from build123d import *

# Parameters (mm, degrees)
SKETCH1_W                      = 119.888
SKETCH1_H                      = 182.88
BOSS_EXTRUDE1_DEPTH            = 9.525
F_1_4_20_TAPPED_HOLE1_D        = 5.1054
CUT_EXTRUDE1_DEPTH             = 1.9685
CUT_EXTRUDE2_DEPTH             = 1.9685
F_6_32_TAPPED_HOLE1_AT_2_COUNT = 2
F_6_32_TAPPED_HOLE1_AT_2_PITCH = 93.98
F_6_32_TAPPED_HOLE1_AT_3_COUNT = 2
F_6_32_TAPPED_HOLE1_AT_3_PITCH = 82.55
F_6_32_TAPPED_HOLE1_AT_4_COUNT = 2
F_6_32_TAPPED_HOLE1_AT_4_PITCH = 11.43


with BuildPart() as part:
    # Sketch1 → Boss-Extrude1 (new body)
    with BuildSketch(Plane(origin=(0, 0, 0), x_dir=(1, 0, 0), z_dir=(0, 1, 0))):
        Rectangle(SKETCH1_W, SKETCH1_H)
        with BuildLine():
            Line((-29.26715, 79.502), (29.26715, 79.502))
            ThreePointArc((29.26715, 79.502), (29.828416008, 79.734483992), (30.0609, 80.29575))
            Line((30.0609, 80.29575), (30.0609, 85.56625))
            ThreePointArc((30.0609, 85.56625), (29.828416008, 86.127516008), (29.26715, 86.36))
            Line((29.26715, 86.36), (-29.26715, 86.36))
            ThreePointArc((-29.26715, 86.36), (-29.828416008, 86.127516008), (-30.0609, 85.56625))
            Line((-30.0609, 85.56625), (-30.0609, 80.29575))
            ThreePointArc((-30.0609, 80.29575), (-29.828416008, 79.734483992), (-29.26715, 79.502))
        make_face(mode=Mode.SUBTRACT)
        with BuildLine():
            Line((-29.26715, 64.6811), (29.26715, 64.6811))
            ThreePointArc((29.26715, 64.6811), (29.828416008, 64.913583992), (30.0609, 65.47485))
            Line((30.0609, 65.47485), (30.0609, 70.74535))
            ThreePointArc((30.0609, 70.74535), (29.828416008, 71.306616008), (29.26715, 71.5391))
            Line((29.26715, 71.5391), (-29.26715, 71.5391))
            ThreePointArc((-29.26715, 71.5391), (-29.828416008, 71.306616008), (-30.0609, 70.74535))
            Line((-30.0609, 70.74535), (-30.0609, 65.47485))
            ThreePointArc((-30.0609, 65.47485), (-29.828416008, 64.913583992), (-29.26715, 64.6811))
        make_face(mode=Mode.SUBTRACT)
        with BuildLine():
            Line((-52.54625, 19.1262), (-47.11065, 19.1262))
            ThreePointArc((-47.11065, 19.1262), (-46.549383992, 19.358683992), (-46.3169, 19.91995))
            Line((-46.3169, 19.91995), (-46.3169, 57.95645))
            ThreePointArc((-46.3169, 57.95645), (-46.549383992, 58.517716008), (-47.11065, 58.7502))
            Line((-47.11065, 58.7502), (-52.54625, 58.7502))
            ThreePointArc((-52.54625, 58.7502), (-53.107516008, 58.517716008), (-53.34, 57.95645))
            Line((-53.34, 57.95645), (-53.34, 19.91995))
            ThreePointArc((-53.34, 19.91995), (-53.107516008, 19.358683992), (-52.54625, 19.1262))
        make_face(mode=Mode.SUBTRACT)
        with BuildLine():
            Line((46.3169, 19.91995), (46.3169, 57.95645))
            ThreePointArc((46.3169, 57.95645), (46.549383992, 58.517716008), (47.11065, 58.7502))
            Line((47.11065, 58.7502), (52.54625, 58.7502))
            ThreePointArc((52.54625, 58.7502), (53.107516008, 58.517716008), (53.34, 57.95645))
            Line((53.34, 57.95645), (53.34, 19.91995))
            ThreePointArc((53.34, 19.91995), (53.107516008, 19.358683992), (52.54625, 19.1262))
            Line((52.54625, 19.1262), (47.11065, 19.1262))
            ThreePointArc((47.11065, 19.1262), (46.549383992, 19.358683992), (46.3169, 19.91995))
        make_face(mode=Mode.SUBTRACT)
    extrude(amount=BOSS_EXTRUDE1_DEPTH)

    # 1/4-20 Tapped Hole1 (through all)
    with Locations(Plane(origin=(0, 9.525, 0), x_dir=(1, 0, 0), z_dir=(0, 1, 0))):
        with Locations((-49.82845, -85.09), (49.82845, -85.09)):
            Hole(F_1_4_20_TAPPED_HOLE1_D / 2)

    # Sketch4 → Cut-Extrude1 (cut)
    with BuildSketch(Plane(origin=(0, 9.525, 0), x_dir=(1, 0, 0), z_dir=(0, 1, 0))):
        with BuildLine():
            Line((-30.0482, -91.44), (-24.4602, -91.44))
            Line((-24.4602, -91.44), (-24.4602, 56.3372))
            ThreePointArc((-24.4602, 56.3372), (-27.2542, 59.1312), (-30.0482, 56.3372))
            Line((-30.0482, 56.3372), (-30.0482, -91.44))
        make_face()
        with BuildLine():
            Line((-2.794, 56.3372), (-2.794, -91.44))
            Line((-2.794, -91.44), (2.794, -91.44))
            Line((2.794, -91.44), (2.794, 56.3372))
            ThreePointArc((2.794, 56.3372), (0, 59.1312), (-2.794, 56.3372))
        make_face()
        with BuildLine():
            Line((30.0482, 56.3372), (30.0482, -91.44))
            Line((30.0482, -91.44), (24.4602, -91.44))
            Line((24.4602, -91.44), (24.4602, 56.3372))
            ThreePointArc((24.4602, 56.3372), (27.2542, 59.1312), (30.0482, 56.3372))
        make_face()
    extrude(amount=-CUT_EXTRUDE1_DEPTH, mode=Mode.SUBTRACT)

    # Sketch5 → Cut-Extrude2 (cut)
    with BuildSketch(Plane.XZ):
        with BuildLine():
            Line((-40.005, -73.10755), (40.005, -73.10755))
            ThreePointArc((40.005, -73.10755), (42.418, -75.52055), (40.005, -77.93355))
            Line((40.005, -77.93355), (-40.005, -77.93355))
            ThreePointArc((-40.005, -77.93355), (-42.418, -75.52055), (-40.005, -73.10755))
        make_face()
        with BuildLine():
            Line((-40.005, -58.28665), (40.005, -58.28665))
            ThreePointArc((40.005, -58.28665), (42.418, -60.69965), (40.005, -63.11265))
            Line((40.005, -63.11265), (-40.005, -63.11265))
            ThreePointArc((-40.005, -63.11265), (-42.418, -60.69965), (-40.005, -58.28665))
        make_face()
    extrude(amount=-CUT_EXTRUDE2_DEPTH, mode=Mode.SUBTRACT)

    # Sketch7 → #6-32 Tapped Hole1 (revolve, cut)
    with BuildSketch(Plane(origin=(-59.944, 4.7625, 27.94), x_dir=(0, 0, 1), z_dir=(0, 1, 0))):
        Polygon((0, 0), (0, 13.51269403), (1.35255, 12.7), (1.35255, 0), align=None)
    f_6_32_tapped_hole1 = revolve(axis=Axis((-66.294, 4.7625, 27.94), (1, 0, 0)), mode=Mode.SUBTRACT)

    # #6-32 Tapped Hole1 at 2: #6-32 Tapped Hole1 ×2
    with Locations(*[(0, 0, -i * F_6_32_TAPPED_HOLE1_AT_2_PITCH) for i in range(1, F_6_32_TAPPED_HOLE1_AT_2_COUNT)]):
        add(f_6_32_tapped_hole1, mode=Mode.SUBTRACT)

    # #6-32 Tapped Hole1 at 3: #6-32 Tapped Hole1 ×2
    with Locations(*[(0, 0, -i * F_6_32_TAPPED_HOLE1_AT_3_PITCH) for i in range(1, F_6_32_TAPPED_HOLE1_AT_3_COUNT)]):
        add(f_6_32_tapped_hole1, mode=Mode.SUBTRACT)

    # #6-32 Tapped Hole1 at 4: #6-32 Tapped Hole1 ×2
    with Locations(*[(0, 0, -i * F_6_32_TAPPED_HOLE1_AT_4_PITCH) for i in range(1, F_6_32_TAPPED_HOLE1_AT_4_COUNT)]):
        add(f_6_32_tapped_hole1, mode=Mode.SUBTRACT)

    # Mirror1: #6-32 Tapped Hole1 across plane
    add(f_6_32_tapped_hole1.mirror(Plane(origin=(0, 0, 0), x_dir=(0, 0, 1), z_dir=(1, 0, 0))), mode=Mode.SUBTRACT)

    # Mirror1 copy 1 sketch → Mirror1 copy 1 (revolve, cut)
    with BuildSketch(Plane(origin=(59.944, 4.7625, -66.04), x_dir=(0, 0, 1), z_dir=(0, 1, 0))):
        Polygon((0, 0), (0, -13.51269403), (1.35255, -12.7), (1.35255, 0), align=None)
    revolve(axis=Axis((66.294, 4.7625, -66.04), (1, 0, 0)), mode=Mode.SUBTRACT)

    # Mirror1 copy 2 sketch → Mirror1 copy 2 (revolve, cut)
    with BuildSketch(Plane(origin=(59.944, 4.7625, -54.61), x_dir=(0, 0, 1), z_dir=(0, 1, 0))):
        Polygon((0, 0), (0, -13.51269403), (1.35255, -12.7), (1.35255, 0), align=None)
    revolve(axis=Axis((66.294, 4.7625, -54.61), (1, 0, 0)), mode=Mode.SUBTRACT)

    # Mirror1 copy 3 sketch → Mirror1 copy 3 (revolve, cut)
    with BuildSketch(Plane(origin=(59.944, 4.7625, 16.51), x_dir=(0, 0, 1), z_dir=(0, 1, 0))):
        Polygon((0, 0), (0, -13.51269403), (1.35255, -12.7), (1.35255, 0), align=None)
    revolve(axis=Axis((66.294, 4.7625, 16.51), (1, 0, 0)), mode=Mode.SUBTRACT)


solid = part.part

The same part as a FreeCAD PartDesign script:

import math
import FreeCAD as App
import Part
import Sketcher

V = App.Vector
Q = App.Units.Quantity

doc = App.newDocument("Part")
body = doc.addObject("PartDesign::Body", "Body")

# Sketch on XZ plane
sketch1 = body.newObject("Sketcher::SketchObject", "Sketch")
sketch1.AttachmentSupport = (doc.getObject("XZ_Plane"), [""])
sketch1.MapMode = "FlatFace"
sketch1.addGeometry(Part.LineSegment(V(-59.9, -91.4, 0), V(-59.9, 91.4, 0)), False)
sketch1.addGeometry(Part.LineSegment(V(-59.9, 91.4, 0), V(59.9, 91.4, 0)), False)
sketch1.addGeometry(Part.LineSegment(V(59.9, 91.4, 0), V(59.9, -91.4, 0)), False)
sketch1.addGeometry(Part.LineSegment(V(59.9, -91.4, 0), V(-59.9, -91.4, 0)), False)
sketch1.addGeometry(Part.LineSegment(V(-47.1, -19.1, 0), V(-52.5, -19.1, 0)), False)
sketch1.addGeometry(Part.ArcOfCircle(Part.Circle(V(-52.5, -19.9, 0), V(0, 0, 1), 0.8), math.radians(90), math.radians(180)), False)
sketch1.addGeometry(Part.LineSegment(V(-53.3, -19.9, 0), V(-53.3, -58, 0)), False)
sketch1.addGeometry(Part.ArcOfCircle(Part.Circle(V(-52.5, -58, 0), V(0, 0, 1), 0.8), math.radians(180), math.radians(270)), False)
sketch1.addGeometry(Part.LineSegment(V(-52.5, -58.8, 0), V(-47.1, -58.8, 0)), False)
sketch1.addGeometry(Part.ArcOfCircle(Part.Circle(V(-47.1, -58, 0), V(0, 0, 1), 0.8), math.radians(-90), math.radians(0)), False)
sketch1.addGeometry(Part.LineSegment(V(-46.3, -58, 0), V(-46.3, -19.9, 0)), False)
sketch1.addGeometry(Part.ArcOfCircle(Part.Circle(V(-47.1, -19.9, 0), V(0, 0, 1), 0.8), math.radians(0), math.radians(90)), False)
sketch1.addGeometry(Part.ArcOfCircle(Part.Circle(V(47.1, -19.9, 0), V(0, 0, 1), 0.8), math.radians(90), math.radians(180)), False)
sketch1.addGeometry(Part.LineSegment(V(46.3, -19.9, 0), V(46.3, -58, 0)), False)
sketch1.addGeometry(Part.ArcOfCircle(Part.Circle(V(47.1, -58, 0), V(0, 0, 1), 0.8), math.radians(180), math.radians(270)), False)
sketch1.addGeometry(Part.LineSegment(V(47.1, -58.8, 0), V(52.5, -58.8, 0)), False)
sketch1.addGeometry(Part.ArcOfCircle(Part.Circle(V(52.5, -58, 0), V(0, 0, 1), 0.8), math.radians(-90), math.radians(0)), False)
sketch1.addGeometry(Part.LineSegment(V(53.3, -58, 0), V(53.3, -19.9, 0)), False)
sketch1.addGeometry(Part.ArcOfCircle(Part.Circle(V(52.5, -19.9, 0), V(0, 0, 1), 0.8), math.radians(0), math.radians(90)), False)
sketch1.addGeometry(Part.LineSegment(V(52.5, -19.1, 0), V(47.1, -19.1, 0)), False)
sketch1.addGeometry(Part.LineSegment(V(29.3, -64.7, 0), V(-29.3, -64.7, 0)), False)
sketch1.addGeometry(Part.ArcOfCircle(Part.Circle(V(-29.3, -65.5, 0), V(0, 0, 1), 0.8), math.radians(90), math.radians(180)), False)
sketch1.addGeometry(Part.LineSegment(V(-30.1, -65.5, 0), V(-30.1, -70.7, 0)), False)
sketch1.addGeometry(Part.ArcOfCircle(Part.Circle(V(-29.3, -70.7, 0), V(0, 0, 1), 0.8), math.radians(180), math.radians(270)), False)
sketch1.addGeometry(Part.LineSegment(V(-29.3, -71.5, 0), V(29.3, -71.5, 0)), False)
sketch1.addGeometry(Part.ArcOfCircle(Part.Circle(V(29.3, -70.7, 0), V(0, 0, 1), 0.8), math.radians(-90), math.radians(0)), False)
sketch1.addGeometry(Part.LineSegment(V(30.1, -70.7, 0), V(30.1, -65.5, 0)), False)
sketch1.addGeometry(Part.ArcOfCircle(Part.Circle(V(29.3, -65.5, 0), V(0, 0, 1), 0.8), math.radians(0), math.radians(90)), False)
sketch1.addGeometry(Part.LineSegment(V(29.3, -79.5, 0), V(-29.3, -79.5, 0)), False)
sketch1.addGeometry(Part.ArcOfCircle(Part.Circle(V(-29.3, -80.3, 0), V(0, 0, 1), 0.8), math.radians(90), math.radians(180)), False)
sketch1.addGeometry(Part.LineSegment(V(-30.1, -80.3, 0), V(-30.1, -85.6, 0)), False)
sketch1.addGeometry(Part.ArcOfCircle(Part.Circle(V(-29.3, -85.6, 0), V(0, 0, 1), 0.8), math.radians(180), math.radians(270)), False)
sketch1.addGeometry(Part.LineSegment(V(-29.3, -86.4, 0), V(29.3, -86.4, 0)), False)
sketch1.addGeometry(Part.ArcOfCircle(Part.Circle(V(29.3, -85.6, 0), V(0, 0, 1), 0.8), math.radians(-90), math.radians(0)), False)
sketch1.addGeometry(Part.LineSegment(V(30.1, -85.6, 0), V(30.1, -80.3, 0)), False)
sketch1.addGeometry(Part.ArcOfCircle(Part.Circle(V(29.3, -80.3, 0), V(0, 0, 1), 0.8), math.radians(0), math.radians(90)), False)
sketch1.addConstraint(Sketcher.Constraint("Coincident", 0, 2, 1, 1))
sketch1.addConstraint(Sketcher.Constraint("Coincident", 1, 2, 2, 1))
sketch1.addConstraint(Sketcher.Constraint("Coincident", 2, 2, 3, 1))
sketch1.addConstraint(Sketcher.Constraint("Coincident", 3, 2, 0, 1))
sketch1.addConstraint(Sketcher.Constraint("Tangent", 4, 2, 5, 1))
sketch1.addConstraint(Sketcher.Constraint("Tangent", 5, 2, 6, 1))
sketch1.addConstraint(Sketcher.Constraint("Tangent", 6, 2, 7, 1))
sketch1.addConstraint(Sketcher.Constraint("Tangent", 7, 2, 8, 1))
sketch1.addConstraint(Sketcher.Constraint("Tangent", 8, 2, 9, 1))
sketch1.addConstraint(Sketcher.Constraint("Tangent", 9, 2, 10, 1))
sketch1.addConstraint(Sketcher.Constraint("Tangent", 10, 2, 11, 1))
sketch1.addConstraint(Sketcher.Constraint("Tangent", 11, 2, 4, 1))
sketch1.addConstraint(Sketcher.Constraint("Tangent", 12, 2, 13, 1))
sketch1.addConstraint(Sketcher.Constraint("Tangent", 13, 2, 14, 1))
sketch1.addConstraint(Sketcher.Constraint("Tangent", 14, 2, 15, 1))
sketch1.addConstraint(Sketcher.Constraint("Tangent", 15, 2, 16, 1))
sketch1.addConstraint(Sketcher.Constraint("Tangent", 16, 2, 17, 1))
sketch1.addConstraint(Sketcher.Constraint("Tangent", 17, 2, 18, 1))
sketch1.addConstraint(Sketcher.Constraint("Tangent", 18, 2, 19, 1))
sketch1.addConstraint(Sketcher.Constraint("Tangent", 19, 2, 12, 1))
sketch1.addConstraint(Sketcher.Constraint("Tangent", 20, 2, 21, 1))
sketch1.addConstraint(Sketcher.Constraint("Tangent", 21, 2, 22, 1))
sketch1.addConstraint(Sketcher.Constraint("Tangent", 22, 2, 23, 1))
sketch1.addConstraint(Sketcher.Constraint("Tangent", 23, 2, 24, 1))
sketch1.addConstraint(Sketcher.Constraint("Tangent", 24, 2, 25, 1))
sketch1.addConstraint(Sketcher.Constraint("Tangent", 25, 2, 26, 1))
sketch1.addConstraint(Sketcher.Constraint("Tangent", 26, 2, 27, 1))
sketch1.addConstraint(Sketcher.Constraint("Tangent", 27, 2, 20, 1))
sketch1.addConstraint(Sketcher.Constraint("Tangent", 28, 2, 29, 1))
sketch1.addConstraint(Sketcher.Constraint("Tangent", 29, 2, 30, 1))
sketch1.addConstraint(Sketcher.Constraint("Tangent", 30, 2, 31, 1))
sketch1.addConstraint(Sketcher.Constraint("Tangent", 31, 2, 32, 1))
sketch1.addConstraint(Sketcher.Constraint("Tangent", 32, 2, 33, 1))
sketch1.addConstraint(Sketcher.Constraint("Tangent", 33, 2, 34, 1))
sketch1.addConstraint(Sketcher.Constraint("Tangent", 34, 2, 35, 1))
sketch1.addConstraint(Sketcher.Constraint("Tangent", 35, 2, 28, 1))
sketch1.addConstraint(Sketcher.Constraint("Vertical", 0))
sketch1.addConstraint(Sketcher.Constraint("Horizontal", 1))
sketch1.addConstraint(Sketcher.Constraint("Vertical", 2))
sketch1.addConstraint(Sketcher.Constraint("Horizontal", 3))
sketch1.addConstraint(Sketcher.Constraint("Horizontal", 4))
sketch1.addConstraint(Sketcher.Constraint("Vertical", 6))
sketch1.addConstraint(Sketcher.Constraint("Horizontal", 8))
sketch1.addConstraint(Sketcher.Constraint("Vertical", 10))
sketch1.addConstraint(Sketcher.Constraint("Vertical", 13))
sketch1.addConstraint(Sketcher.Constraint("Horizontal", 15))
sketch1.addConstraint(Sketcher.Constraint("Vertical", 17))
sketch1.addConstraint(Sketcher.Constraint("Horizontal", 19))
sketch1.addConstraint(Sketcher.Constraint("Horizontal", 20))
sketch1.addConstraint(Sketcher.Constraint("Vertical", 22))
sketch1.addConstraint(Sketcher.Constraint("Horizontal", 24))
sketch1.addConstraint(Sketcher.Constraint("Vertical", 26))
sketch1.addConstraint(Sketcher.Constraint("Horizontal", 28))
sketch1.addConstraint(Sketcher.Constraint("Vertical", 30))
sketch1.addConstraint(Sketcher.Constraint("Horizontal", 32))
sketch1.addConstraint(Sketcher.Constraint("Vertical", 34))
sketch1.addConstraint(Sketcher.Constraint("Equal", 5, 7))
sketch1.addConstraint(Sketcher.Constraint("Equal", 7, 9))
sketch1.addConstraint(Sketcher.Constraint("Equal", 9, 11))
sketch1.addConstraint(Sketcher.Constraint("Equal", 11, 12))
sketch1.addConstraint(Sketcher.Constraint("Equal", 12, 14))
sketch1.addConstraint(Sketcher.Constraint("Equal", 14, 16))
sketch1.addConstraint(Sketcher.Constraint("Equal", 16, 18))
sketch1.addConstraint(Sketcher.Constraint("Equal", 18, 21))
sketch1.addConstraint(Sketcher.Constraint("Equal", 21, 23))
sketch1.addConstraint(Sketcher.Constraint("Equal", 23, 25))
sketch1.addConstraint(Sketcher.Constraint("Equal", 25, 27))
sketch1.addConstraint(Sketcher.Constraint("Equal", 27, 29))
sketch1.addConstraint(Sketcher.Constraint("Equal", 29, 31))
sketch1.addConstraint(Sketcher.Constraint("Equal", 31, 33))
sketch1.addConstraint(Sketcher.Constraint("Equal", 33, 35))
sketch1.addConstraint(Sketcher.Constraint("Symmetric", 0, 2, 2, 2, -1, 1))
sketch1.addConstraint(Sketcher.Constraint("Symmetric", 11, 3, 12, 3, -2))
sketch1.addConstraint(Sketcher.Constraint("Symmetric", 7, 3, 16, 3, -2))
sketch1.addConstraint(Sketcher.Constraint("Vertical", 23, 3, 29, 3))
sketch1.addConstraint(Sketcher.Constraint("Vertical", 27, 3, 33, 3))
sketch1.addConstraint(Sketcher.Constraint("Equal", 26, 30))
sketch1.addConstraint(Sketcher.Constraint("DistanceY", 0, 1, 0, 2, Q("7.2 in")))
sketch1.addConstraint(Sketcher.Constraint("Radius", 5, Q("0.03125 in")))
sketch1.addConstraint(Sketcher.Constraint("DistanceX", 1, 1, 1, 2, Q("4.72 in")))
sketch1.addConstraint(Sketcher.Constraint("DistanceX", 5, 2, -1, 1, Q("2.1 in")))
sketch1.addConstraint(Sketcher.Constraint("DistanceY", 31, 2, -1, 1, Q("3.4 in")))
sketch1.addConstraint(Sketcher.Constraint("DistanceX", 4, 2, 4, 1, Q("0.214 in")))
sketch1.addConstraint(Sketcher.Constraint("DistanceY", 28, 2, -1, 1, Q("3.13 in")))
sketch1.addConstraint(Sketcher.Constraint("DistanceX", 9, 2, 21, 2, Q("0.64 in")))
sketch1.addConstraint(Sketcher.Constraint("DistanceX", 20, 2, 20, 1, Q("2.3045 in")))
sketch1.addConstraint(Sketcher.Constraint("DistanceY", 6, 2, 6, 1, Q("1.4975 in")))
sketch1.addConstraint(Sketcher.Constraint("DistanceY", 4, 2, -1, 1, Q("0.753 in")))
sketch1.addConstraint(Sketcher.Constraint("DistanceY", 21, 3, 9, 3, Q("0.296 in")))
pad1 = body.newObject("PartDesign::Pad", "Pad")
pad1.Profile = sketch1
pad1.Length = Q("0.375 in")
pad1.Reversed = True

# Sketch on XZ plane
sketch2 = body.newObject("Sketcher::SketchObject", "Sketch001")
sketch2.AttachmentSupport = (doc.getObject("XZ_Plane"), [""])
sketch2.MapMode = "FlatFace"
sketch2.AttachmentOffset = App.Placement(V(0, 0, -0.375 * 25.4), App.Rotation())
sketch2.addGeometry(Part.Circle(V(-49.8, 85.1, 0), V(0, 0, 1), 2.6), False)
sketch2.addGeometry(Part.Circle(V(49.8, 85.1, 0), V(0, 0, 1), 2.6), False)
sketch2.addConstraint(Sketcher.Constraint("Equal", 0, 1))
sketch2.addConstraint(Sketcher.Constraint("Symmetric", 0, 3, 1, 3, -2))
sketch2.addConstraint(Sketcher.Constraint("Diameter", 0, Q("0.201 in")))
sketch2.addConstraint(Sketcher.Constraint("DistanceY", -1, 1, 0, 3, Q("3.35 in")))
sketch2.addConstraint(Sketcher.Constraint("DistanceX", 0, 3, 1, 3, Q("3.9235 in")))
doc.recompute()
hole = body.newObject("PartDesign::Hole", "Hole")
hole.Profile = sketch2
hole.ThreadType = "None"
hole.Diameter = Q("0.201 in")
hole.DepthType = "ThroughAll"
hole.Reversed = True

# Sketch on XZ plane
sketch3 = body.newObject("Sketcher::SketchObject", "Sketch002")
sketch3.AttachmentSupport = (doc.getObject("XZ_Plane"), [""])
sketch3.MapMode = "FlatFace"
sketch3.AttachmentOffset = App.Placement(V(0, 0, -0.375 * 25.4), App.Rotation())
sketch3.addGeometry(Part.LineSegment(V(-30, 91.4, 0), V(-24.5, 91.4, 0)), False)
sketch3.addGeometry(Part.LineSegment(V(-24.5, 91.4, 0), V(-24.5, -56.3, 0)), False)
sketch3.addGeometry(Part.ArcOfCircle(Part.Circle(V(-27.3, -56.3, 0), V(0, 0, 1), 2.8), math.radians(180), math.radians(360)), False)
sketch3.addGeometry(Part.LineSegment(V(-30, -56.3, 0), V(-30, 91.4, 0)), False)
sketch3.addGeometry(Part.LineSegment(V(-2.8, -56.3, 0), V(-2.8, 91.4, 0)), False)
sketch3.addGeometry(Part.LineSegment(V(-2.8, 91.4, 0), V(2.8, 91.4, 0)), False)
sketch3.addGeometry(Part.LineSegment(V(2.8, 91.4, 0), V(2.8, -56.3, 0)), False)
sketch3.addGeometry(Part.ArcOfCircle(Part.Circle(V(0, -56.3, 0), V(0, 0, 1), 2.8), math.radians(180), math.radians(360)), False)
sketch3.addGeometry(Part.LineSegment(V(30, 91.4, 0), V(30, -56.3, 0)), False)
sketch3.addGeometry(Part.ArcOfCircle(Part.Circle(V(27.3, -56.3, 0), V(0, 0, 1), 2.8), math.radians(180), math.radians(360)), False)
sketch3.addGeometry(Part.LineSegment(V(24.5, -56.3, 0), V(24.5, 91.4, 0)), False)
sketch3.addGeometry(Part.LineSegment(V(24.5, 91.4, 0), V(30, 91.4, 0)), False)
sketch3.addConstraint(Sketcher.Constraint("Coincident", 0, 2, 1, 1))
sketch3.addConstraint(Sketcher.Constraint("Tangent", 1, 2, 2, 2))
sketch3.addConstraint(Sketcher.Constraint("Tangent", 2, 1, 3, 1))
sketch3.addConstraint(Sketcher.Constraint("Coincident", 3, 2, 0, 1))
sketch3.addConstraint(Sketcher.Constraint("Coincident", 4, 2, 5, 1))
sketch3.addConstraint(Sketcher.Constraint("Coincident", 5, 2, 6, 1))
sketch3.addConstraint(Sketcher.Constraint("Tangent", 6, 2, 7, 2))
sketch3.addConstraint(Sketcher.Constraint("Tangent", 7, 1, 4, 1))
sketch3.addConstraint(Sketcher.Constraint("Tangent", 8, 2, 9, 2))
sketch3.addConstraint(Sketcher.Constraint("Tangent", 9, 1, 10, 1))
sketch3.addConstraint(Sketcher.Constraint("Coincident", 10, 2, 11, 1))
sketch3.addConstraint(Sketcher.Constraint("Coincident", 11, 2, 8, 1))
sketch3.addConstraint(Sketcher.Constraint("Horizontal", 0))
sketch3.addConstraint(Sketcher.Constraint("Vertical", 1))
sketch3.addConstraint(Sketcher.Constraint("Vertical", 3))
sketch3.addConstraint(Sketcher.Constraint("Vertical", 4))
sketch3.addConstraint(Sketcher.Constraint("Horizontal", 5))
sketch3.addConstraint(Sketcher.Constraint("Vertical", 6))
sketch3.addConstraint(Sketcher.Constraint("Vertical", 8))
sketch3.addConstraint(Sketcher.Constraint("Vertical", 10))
sketch3.addConstraint(Sketcher.Constraint("Horizontal", 11))
sketch3.addConstraint(Sketcher.Constraint("Equal", 2, 7))
sketch3.addConstraint(Sketcher.Constraint("Equal", 7, 9))
sketch3.addConstraint(Sketcher.Constraint("Symmetric", 2, 3, 9, 3, -2))
sketch3.addConstraint(Sketcher.Constraint("PointOnObject", 7, 3, -2))
sketch3.addConstraint(Sketcher.Constraint("Horizontal", 2, 3, 7, 3))
sketch3.addConstraint(Sketcher.Constraint("Horizontal", 3, 2, 4, 2))
sketch3.addConstraint(Sketcher.Constraint("Horizontal", 5, 2, 10, 2))
sketch3.addConstraint(Sketcher.Constraint("Radius", 2, Q("0.11 in")))
sketch3.addConstraint(Sketcher.Constraint("DistanceY", -1, 1, 0, 2, Q("3.6 in")))
sketch3.addConstraint(Sketcher.Constraint("DistanceY", 1, 2, 1, 1, Q("5.818 in")))
sketch3.addConstraint(Sketcher.Constraint("DistanceX", 2, 3, -1, 1, Q("1.073 in")))
pocket1 = body.newObject("PartDesign::Pocket", "Pocket")
pocket1.Profile = sketch3
pocket1.Length = Q("0.0775 in")
pocket1.Reversed = True

# Sketch on XZ plane
sketch4 = body.newObject("Sketcher::SketchObject", "Sketch003")
sketch4.AttachmentSupport = (doc.getObject("XZ_Plane"), [""])
sketch4.MapMode = "FlatFace"
sketch4.addGeometry(Part.LineSegment(V(40, -73.1, 0), V(-40, -73.1, 0)), False)
sketch4.addGeometry(Part.ArcOfCircle(Part.Circle(V(-40, -75.5, 0), V(0, 0, 1), 2.4), math.radians(90), math.radians(270)), False)
sketch4.addGeometry(Part.LineSegment(V(-40, -77.9, 0), V(40, -77.9, 0)), False)
sketch4.addGeometry(Part.ArcOfCircle(Part.Circle(V(40, -75.5, 0), V(0, 0, 1), 2.4), math.radians(-90), math.radians(90)), False)
sketch4.addGeometry(Part.LineSegment(V(40, -58.3, 0), V(-40, -58.3, 0)), False)
sketch4.addGeometry(Part.ArcOfCircle(Part.Circle(V(-40, -60.7, 0), V(0, 0, 1), 2.4), math.radians(90), math.radians(270)), False)
sketch4.addGeometry(Part.LineSegment(V(-40, -63.1, 0), V(40, -63.1, 0)), False)
sketch4.addGeometry(Part.ArcOfCircle(Part.Circle(V(40, -60.7, 0), V(0, 0, 1), 2.4), math.radians(-90), math.radians(90)), False)
sketch4.addConstraint(Sketcher.Constraint("Tangent", 0, 2, 1, 1))
sketch4.addConstraint(Sketcher.Constraint("Tangent", 1, 2, 2, 1))
sketch4.addConstraint(Sketcher.Constraint("Tangent", 2, 2, 3, 1))
sketch4.addConstraint(Sketcher.Constraint("Tangent", 3, 2, 0, 1))
sketch4.addConstraint(Sketcher.Constraint("Tangent", 4, 2, 5, 1))
sketch4.addConstraint(Sketcher.Constraint("Tangent", 5, 2, 6, 1))
sketch4.addConstraint(Sketcher.Constraint("Tangent", 6, 2, 7, 1))
sketch4.addConstraint(Sketcher.Constraint("Tangent", 7, 2, 4, 1))
sketch4.addConstraint(Sketcher.Constraint("Horizontal", 0))
sketch4.addConstraint(Sketcher.Constraint("Horizontal", 2))
sketch4.addConstraint(Sketcher.Constraint("Horizontal", 4))
sketch4.addConstraint(Sketcher.Constraint("Horizontal", 6))
sketch4.addConstraint(Sketcher.Constraint("Equal", 3, 5))
sketch4.addConstraint(Sketcher.Constraint("Vertical", 1, 3, 5, 3))
sketch4.addConstraint(Sketcher.Constraint("Vertical", 3, 3, 7, 3))
sketch4.addConstraint(Sketcher.Constraint("Radius", 1, Q("0.095 in")))
sketch4.addConstraint(Sketcher.Constraint("DistanceX", 0, 2, 0, 1, Q("3.15 in")))
sketch4.addConstraint(Sketcher.Constraint("DistanceX", 1, 3, -1, 1, Q("1.575 in")))
sketch4.addConstraint(Sketcher.Constraint("DistanceY", 1, 3, 5, 3, Q("0.5835 in")))
sketch4.addConstraint(Sketcher.Constraint("DistanceY", 1, 3, -1, 1, 75.52055))
pocket2 = body.newObject("PartDesign::Pocket", "Pocket001")
pocket2.Profile = sketch4
pocket2.Length = Q("0.0775 in")

# Sketch on XZ plane
sketch5 = body.newObject("Sketcher::SketchObject", "Sketch004")
sketch5.AttachmentSupport = (doc.getObject("XZ_Plane"), [""])
sketch5.MapMode = "FlatFace"
sketch5.AttachmentOffset = App.Placement(V(0, 0, -0.1875 * 25.4), App.Rotation())
sketch5.addGeometry(Part.LineSegment(V(-46.4, 27.9, 0), V(-59.9, 27.9, 0)), False)
sketch5.addGeometry(Part.LineSegment(V(-59.9, 27.9, 0), V(-59.9, 29.3, 0)), False)
sketch5.addGeometry(Part.LineSegment(V(-59.9, 29.3, 0), V(-47.2, 29.3, 0)), False)
sketch5.addGeometry(Part.LineSegment(V(-47.2, 29.3, 0), V(-46.4, 27.9, 0)), False)
sketch5.addGeometry(Part.LineSegment(V(-59.9, 27.9, 0), V(-46.4, 27.9, 0)), True)  # axis
sketch5.addConstraint(Sketcher.Constraint("Coincident", 0, 2, 1, 1))
sketch5.addConstraint(Sketcher.Constraint("Coincident", 1, 2, 2, 1))
sketch5.addConstraint(Sketcher.Constraint("Coincident", 2, 2, 3, 1))
sketch5.addConstraint(Sketcher.Constraint("Coincident", 3, 2, 0, 1))
sketch5.addConstraint(Sketcher.Constraint("Horizontal", 0))
sketch5.addConstraint(Sketcher.Constraint("Vertical", 1))
sketch5.addConstraint(Sketcher.Constraint("Horizontal", 2))
sketch5.addConstraint(Sketcher.Constraint("Horizontal", 4))
sketch5.addConstraint(Sketcher.Constraint("Coincident", 4, 1, 0, 2))
sketch5.addConstraint(Sketcher.Constraint("Equal", 0, 4))
sketch5.addConstraint(Sketcher.Constraint("DistanceX", 2, 1, 2, 2, Q("0.5 in")))
sketch5.addConstraint(Sketcher.Constraint("Angle", 3, Q("-59 deg")))
sketch5.addConstraint(Sketcher.Constraint("DistanceY", -1, 1, 0, 2, Q("1.1 in")))
sketch5.addConstraint(Sketcher.Constraint("DistanceX", 0, 2, -1, 1, Q("2.36 in")))
sketch5.addConstraint(Sketcher.Constraint("DistanceY", 1, 1, 1, 2, 1.35255))
groove = body.newObject("PartDesign::Groove", "Groove")
groove.Profile = sketch5
groove.ReferenceAxis = (sketch5, ["Axis0"])
groove.Angle = 360
doc.recompute()

linearpattern = body.newObject("PartDesign::LinearPattern", "LinearPattern")
linearpattern.Originals = [groove]
linearpattern.Direction = (doc.getObject("Z_Axis"), [""])
linearpattern.Mode = "offset"
linearpattern.Offset = Q("3.7 in")
linearpattern.Occurrences = 2
linearpattern.Reversed = True
body.Tip = linearpattern
doc.recompute()

linearpattern2 = body.newObject("PartDesign::LinearPattern", "LinearPattern001")
linearpattern2.Originals = [groove]
linearpattern2.Direction = (doc.getObject("Z_Axis"), [""])
linearpattern2.Mode = "offset"
linearpattern2.Offset = Q("3.25 in")
linearpattern2.Occurrences = 2
linearpattern2.Reversed = True
body.Tip = linearpattern2
doc.recompute()

linearpattern3 = body.newObject("PartDesign::LinearPattern", "LinearPattern002")
linearpattern3.Originals = [groove]
linearpattern3.Direction = (doc.getObject("Z_Axis"), [""])
linearpattern3.Mode = "offset"
linearpattern3.Offset = Q("0.45 in")
linearpattern3.Occurrences = 2
linearpattern3.Reversed = True
body.Tip = linearpattern3
doc.recompute()

mirrored = body.newObject("PartDesign::Mirrored", "Mirrored")
mirrored.Originals = [groove]
mirrored.MirrorPlane = (doc.getObject("YZ_Plane"), [""])
body.Tip = mirrored

# Sketch on XZ plane
sketch6 = body.newObject("Sketcher::SketchObject", "Sketch005")
sketch6.AttachmentSupport = (doc.getObject("XZ_Plane"), [""])
sketch6.MapMode = "FlatFace"
sketch6.AttachmentOffset = App.Placement(V(0, 0, -0.1875 * 25.4), App.Rotation())
sketch6.addGeometry(Part.LineSegment(V(59.9, -66, 0), V(46.4, -66, 0)), False)
sketch6.addGeometry(Part.LineSegment(V(46.4, -66, 0), V(47.2, -64.7, 0)), False)
sketch6.addGeometry(Part.LineSegment(V(47.2, -64.7, 0), V(59.9, -64.7, 0)), False)
sketch6.addGeometry(Part.LineSegment(V(59.9, -64.7, 0), V(59.9, -66, 0)), False)
sketch6.addGeometry(Part.LineSegment(V(46.4, -66, 0), V(59.9, -66, 0)), True)  # axis
sketch6.addConstraint(Sketcher.Constraint("Coincident", 0, 2, 1, 1))
sketch6.addConstraint(Sketcher.Constraint("Coincident", 1, 2, 2, 1))
sketch6.addConstraint(Sketcher.Constraint("Coincident", 2, 2, 3, 1))
sketch6.addConstraint(Sketcher.Constraint("Coincident", 3, 2, 0, 1))
sketch6.addConstraint(Sketcher.Constraint("Horizontal", 0))
sketch6.addConstraint(Sketcher.Constraint("Horizontal", 2))
sketch6.addConstraint(Sketcher.Constraint("Vertical", 3))
sketch6.addConstraint(Sketcher.Constraint("Horizontal", 4))
sketch6.addConstraint(Sketcher.Constraint("Coincident", 4, 1, 0, 2))
sketch6.addConstraint(Sketcher.Constraint("Vertical", 2, 2, 4, 2))
sketch6.addConstraint(Sketcher.Constraint("DistanceX", 2, 1, 2, 2, Q("0.5 in")))
sketch6.addConstraint(Sketcher.Constraint("Angle", 1, Q("59 deg")))
sketch6.addConstraint(Sketcher.Constraint("DistanceY", 0, 2, -1, 1, Q("2.6 in")))
sketch6.addConstraint(Sketcher.Constraint("DistanceX", -1, 1, 1, 2, Q("1.86 in")))
sketch6.addConstraint(Sketcher.Constraint("DistanceY", 3, 2, 3, 1, 1.35255))
groove2 = body.newObject("PartDesign::Groove", "Groove001")
groove2.Profile = sketch6
groove2.ReferenceAxis = (sketch6, ["Axis0"])
groove2.Angle = 360

# Sketch on XZ plane
sketch7 = body.newObject("Sketcher::SketchObject", "Sketch006")
sketch7.AttachmentSupport = (doc.getObject("XZ_Plane"), [""])
sketch7.MapMode = "FlatFace"
sketch7.AttachmentOffset = App.Placement(V(0, 0, -0.1875 * 25.4), App.Rotation())
sketch7.addGeometry(Part.LineSegment(V(59.9, -54.6, 0), V(46.4, -54.6, 0)), False)
sketch7.addGeometry(Part.LineSegment(V(46.4, -54.6, 0), V(47.2, -53.3, 0)), False)
sketch7.addGeometry(Part.LineSegment(V(47.2, -53.3, 0), V(59.9, -53.3, 0)), False)
sketch7.addGeometry(Part.LineSegment(V(59.9, -53.3, 0), V(59.9, -54.6, 0)), False)
sketch7.addGeometry(Part.LineSegment(V(46.4, -54.6, 0), V(59.9, -54.6, 0)), True)  # axis
sketch7.addConstraint(Sketcher.Constraint("Coincident", 0, 2, 1, 1))
sketch7.addConstraint(Sketcher.Constraint("Coincident", 1, 2, 2, 1))
sketch7.addConstraint(Sketcher.Constraint("Coincident", 2, 2, 3, 1))
sketch7.addConstraint(Sketcher.Constraint("Coincident", 3, 2, 0, 1))
sketch7.addConstraint(Sketcher.Constraint("Horizontal", 0))
sketch7.addConstraint(Sketcher.Constraint("Horizontal", 2))
sketch7.addConstraint(Sketcher.Constraint("Vertical", 3))
sketch7.addConstraint(Sketcher.Constraint("Horizontal", 4))
sketch7.addConstraint(Sketcher.Constraint("Coincident", 4, 1, 0, 2))
sketch7.addConstraint(Sketcher.Constraint("Vertical", 2, 2, 4, 2))
sketch7.addConstraint(Sketcher.Constraint("DistanceX", 2, 1, 2, 2, Q("0.5 in")))
sketch7.addConstraint(Sketcher.Constraint("Angle", 1, Q("59 deg")))
sketch7.addConstraint(Sketcher.Constraint("DistanceY", 0, 2, -1, 1, Q("2.15 in")))
sketch7.addConstraint(Sketcher.Constraint("DistanceX", -1, 1, 1, 2, Q("1.86 in")))
sketch7.addConstraint(Sketcher.Constraint("DistanceY", 3, 2, 3, 1, 1.35255))
groove3 = body.newObject("PartDesign::Groove", "Groove002")
groove3.Profile = sketch7
groove3.ReferenceAxis = (sketch7, ["Axis0"])
groove3.Angle = 360

# Sketch on XZ plane
sketch8 = body.newObject("Sketcher::SketchObject", "Sketch007")
sketch8.AttachmentSupport = (doc.getObject("XZ_Plane"), [""])
sketch8.MapMode = "FlatFace"
sketch8.AttachmentOffset = App.Placement(V(0, 0, -0.1875 * 25.4), App.Rotation())
sketch8.addGeometry(Part.LineSegment(V(59.9, 16.5, 0), V(46.4, 16.5, 0)), False)
sketch8.addGeometry(Part.LineSegment(V(46.4, 16.5, 0), V(47.2, 17.9, 0)), False)
sketch8.addGeometry(Part.LineSegment(V(47.2, 17.9, 0), V(59.9, 17.9, 0)), False)
sketch8.addGeometry(Part.LineSegment(V(59.9, 17.9, 0), V(59.9, 16.5, 0)), False)
sketch8.addGeometry(Part.LineSegment(V(46.4, 16.5, 0), V(59.9, 16.5, 0)), True)  # axis
sketch8.addConstraint(Sketcher.Constraint("Coincident", 0, 2, 1, 1))
sketch8.addConstraint(Sketcher.Constraint("Coincident", 1, 2, 2, 1))
sketch8.addConstraint(Sketcher.Constraint("Coincident", 2, 2, 3, 1))
sketch8.addConstraint(Sketcher.Constraint("Coincident", 3, 2, 0, 1))
sketch8.addConstraint(Sketcher.Constraint("Horizontal", 0))
sketch8.addConstraint(Sketcher.Constraint("Horizontal", 2))
sketch8.addConstraint(Sketcher.Constraint("Vertical", 3))
sketch8.addConstraint(Sketcher.Constraint("Horizontal", 4))
sketch8.addConstraint(Sketcher.Constraint("Coincident", 4, 1, 0, 2))
sketch8.addConstraint(Sketcher.Constraint("Vertical", 2, 2, 4, 2))
sketch8.addConstraint(Sketcher.Constraint("DistanceX", 2, 1, 2, 2, Q("0.5 in")))
sketch8.addConstraint(Sketcher.Constraint("Angle", 1, Q("59 deg")))
sketch8.addConstraint(Sketcher.Constraint("DistanceY", -1, 1, 0, 2, Q("0.65 in")))
sketch8.addConstraint(Sketcher.Constraint("DistanceX", -1, 1, 1, 2, Q("1.86 in")))
sketch8.addConstraint(Sketcher.Constraint("DistanceY", 3, 2, 3, 1, 1.35255))
groove4 = body.newObject("PartDesign::Groove", "Groove003")
groove4.Profile = sketch8
groove4.ReferenceAxis = (sketch8, ["Axis0"])
groove4.Angle = 360

doc.recompute()
